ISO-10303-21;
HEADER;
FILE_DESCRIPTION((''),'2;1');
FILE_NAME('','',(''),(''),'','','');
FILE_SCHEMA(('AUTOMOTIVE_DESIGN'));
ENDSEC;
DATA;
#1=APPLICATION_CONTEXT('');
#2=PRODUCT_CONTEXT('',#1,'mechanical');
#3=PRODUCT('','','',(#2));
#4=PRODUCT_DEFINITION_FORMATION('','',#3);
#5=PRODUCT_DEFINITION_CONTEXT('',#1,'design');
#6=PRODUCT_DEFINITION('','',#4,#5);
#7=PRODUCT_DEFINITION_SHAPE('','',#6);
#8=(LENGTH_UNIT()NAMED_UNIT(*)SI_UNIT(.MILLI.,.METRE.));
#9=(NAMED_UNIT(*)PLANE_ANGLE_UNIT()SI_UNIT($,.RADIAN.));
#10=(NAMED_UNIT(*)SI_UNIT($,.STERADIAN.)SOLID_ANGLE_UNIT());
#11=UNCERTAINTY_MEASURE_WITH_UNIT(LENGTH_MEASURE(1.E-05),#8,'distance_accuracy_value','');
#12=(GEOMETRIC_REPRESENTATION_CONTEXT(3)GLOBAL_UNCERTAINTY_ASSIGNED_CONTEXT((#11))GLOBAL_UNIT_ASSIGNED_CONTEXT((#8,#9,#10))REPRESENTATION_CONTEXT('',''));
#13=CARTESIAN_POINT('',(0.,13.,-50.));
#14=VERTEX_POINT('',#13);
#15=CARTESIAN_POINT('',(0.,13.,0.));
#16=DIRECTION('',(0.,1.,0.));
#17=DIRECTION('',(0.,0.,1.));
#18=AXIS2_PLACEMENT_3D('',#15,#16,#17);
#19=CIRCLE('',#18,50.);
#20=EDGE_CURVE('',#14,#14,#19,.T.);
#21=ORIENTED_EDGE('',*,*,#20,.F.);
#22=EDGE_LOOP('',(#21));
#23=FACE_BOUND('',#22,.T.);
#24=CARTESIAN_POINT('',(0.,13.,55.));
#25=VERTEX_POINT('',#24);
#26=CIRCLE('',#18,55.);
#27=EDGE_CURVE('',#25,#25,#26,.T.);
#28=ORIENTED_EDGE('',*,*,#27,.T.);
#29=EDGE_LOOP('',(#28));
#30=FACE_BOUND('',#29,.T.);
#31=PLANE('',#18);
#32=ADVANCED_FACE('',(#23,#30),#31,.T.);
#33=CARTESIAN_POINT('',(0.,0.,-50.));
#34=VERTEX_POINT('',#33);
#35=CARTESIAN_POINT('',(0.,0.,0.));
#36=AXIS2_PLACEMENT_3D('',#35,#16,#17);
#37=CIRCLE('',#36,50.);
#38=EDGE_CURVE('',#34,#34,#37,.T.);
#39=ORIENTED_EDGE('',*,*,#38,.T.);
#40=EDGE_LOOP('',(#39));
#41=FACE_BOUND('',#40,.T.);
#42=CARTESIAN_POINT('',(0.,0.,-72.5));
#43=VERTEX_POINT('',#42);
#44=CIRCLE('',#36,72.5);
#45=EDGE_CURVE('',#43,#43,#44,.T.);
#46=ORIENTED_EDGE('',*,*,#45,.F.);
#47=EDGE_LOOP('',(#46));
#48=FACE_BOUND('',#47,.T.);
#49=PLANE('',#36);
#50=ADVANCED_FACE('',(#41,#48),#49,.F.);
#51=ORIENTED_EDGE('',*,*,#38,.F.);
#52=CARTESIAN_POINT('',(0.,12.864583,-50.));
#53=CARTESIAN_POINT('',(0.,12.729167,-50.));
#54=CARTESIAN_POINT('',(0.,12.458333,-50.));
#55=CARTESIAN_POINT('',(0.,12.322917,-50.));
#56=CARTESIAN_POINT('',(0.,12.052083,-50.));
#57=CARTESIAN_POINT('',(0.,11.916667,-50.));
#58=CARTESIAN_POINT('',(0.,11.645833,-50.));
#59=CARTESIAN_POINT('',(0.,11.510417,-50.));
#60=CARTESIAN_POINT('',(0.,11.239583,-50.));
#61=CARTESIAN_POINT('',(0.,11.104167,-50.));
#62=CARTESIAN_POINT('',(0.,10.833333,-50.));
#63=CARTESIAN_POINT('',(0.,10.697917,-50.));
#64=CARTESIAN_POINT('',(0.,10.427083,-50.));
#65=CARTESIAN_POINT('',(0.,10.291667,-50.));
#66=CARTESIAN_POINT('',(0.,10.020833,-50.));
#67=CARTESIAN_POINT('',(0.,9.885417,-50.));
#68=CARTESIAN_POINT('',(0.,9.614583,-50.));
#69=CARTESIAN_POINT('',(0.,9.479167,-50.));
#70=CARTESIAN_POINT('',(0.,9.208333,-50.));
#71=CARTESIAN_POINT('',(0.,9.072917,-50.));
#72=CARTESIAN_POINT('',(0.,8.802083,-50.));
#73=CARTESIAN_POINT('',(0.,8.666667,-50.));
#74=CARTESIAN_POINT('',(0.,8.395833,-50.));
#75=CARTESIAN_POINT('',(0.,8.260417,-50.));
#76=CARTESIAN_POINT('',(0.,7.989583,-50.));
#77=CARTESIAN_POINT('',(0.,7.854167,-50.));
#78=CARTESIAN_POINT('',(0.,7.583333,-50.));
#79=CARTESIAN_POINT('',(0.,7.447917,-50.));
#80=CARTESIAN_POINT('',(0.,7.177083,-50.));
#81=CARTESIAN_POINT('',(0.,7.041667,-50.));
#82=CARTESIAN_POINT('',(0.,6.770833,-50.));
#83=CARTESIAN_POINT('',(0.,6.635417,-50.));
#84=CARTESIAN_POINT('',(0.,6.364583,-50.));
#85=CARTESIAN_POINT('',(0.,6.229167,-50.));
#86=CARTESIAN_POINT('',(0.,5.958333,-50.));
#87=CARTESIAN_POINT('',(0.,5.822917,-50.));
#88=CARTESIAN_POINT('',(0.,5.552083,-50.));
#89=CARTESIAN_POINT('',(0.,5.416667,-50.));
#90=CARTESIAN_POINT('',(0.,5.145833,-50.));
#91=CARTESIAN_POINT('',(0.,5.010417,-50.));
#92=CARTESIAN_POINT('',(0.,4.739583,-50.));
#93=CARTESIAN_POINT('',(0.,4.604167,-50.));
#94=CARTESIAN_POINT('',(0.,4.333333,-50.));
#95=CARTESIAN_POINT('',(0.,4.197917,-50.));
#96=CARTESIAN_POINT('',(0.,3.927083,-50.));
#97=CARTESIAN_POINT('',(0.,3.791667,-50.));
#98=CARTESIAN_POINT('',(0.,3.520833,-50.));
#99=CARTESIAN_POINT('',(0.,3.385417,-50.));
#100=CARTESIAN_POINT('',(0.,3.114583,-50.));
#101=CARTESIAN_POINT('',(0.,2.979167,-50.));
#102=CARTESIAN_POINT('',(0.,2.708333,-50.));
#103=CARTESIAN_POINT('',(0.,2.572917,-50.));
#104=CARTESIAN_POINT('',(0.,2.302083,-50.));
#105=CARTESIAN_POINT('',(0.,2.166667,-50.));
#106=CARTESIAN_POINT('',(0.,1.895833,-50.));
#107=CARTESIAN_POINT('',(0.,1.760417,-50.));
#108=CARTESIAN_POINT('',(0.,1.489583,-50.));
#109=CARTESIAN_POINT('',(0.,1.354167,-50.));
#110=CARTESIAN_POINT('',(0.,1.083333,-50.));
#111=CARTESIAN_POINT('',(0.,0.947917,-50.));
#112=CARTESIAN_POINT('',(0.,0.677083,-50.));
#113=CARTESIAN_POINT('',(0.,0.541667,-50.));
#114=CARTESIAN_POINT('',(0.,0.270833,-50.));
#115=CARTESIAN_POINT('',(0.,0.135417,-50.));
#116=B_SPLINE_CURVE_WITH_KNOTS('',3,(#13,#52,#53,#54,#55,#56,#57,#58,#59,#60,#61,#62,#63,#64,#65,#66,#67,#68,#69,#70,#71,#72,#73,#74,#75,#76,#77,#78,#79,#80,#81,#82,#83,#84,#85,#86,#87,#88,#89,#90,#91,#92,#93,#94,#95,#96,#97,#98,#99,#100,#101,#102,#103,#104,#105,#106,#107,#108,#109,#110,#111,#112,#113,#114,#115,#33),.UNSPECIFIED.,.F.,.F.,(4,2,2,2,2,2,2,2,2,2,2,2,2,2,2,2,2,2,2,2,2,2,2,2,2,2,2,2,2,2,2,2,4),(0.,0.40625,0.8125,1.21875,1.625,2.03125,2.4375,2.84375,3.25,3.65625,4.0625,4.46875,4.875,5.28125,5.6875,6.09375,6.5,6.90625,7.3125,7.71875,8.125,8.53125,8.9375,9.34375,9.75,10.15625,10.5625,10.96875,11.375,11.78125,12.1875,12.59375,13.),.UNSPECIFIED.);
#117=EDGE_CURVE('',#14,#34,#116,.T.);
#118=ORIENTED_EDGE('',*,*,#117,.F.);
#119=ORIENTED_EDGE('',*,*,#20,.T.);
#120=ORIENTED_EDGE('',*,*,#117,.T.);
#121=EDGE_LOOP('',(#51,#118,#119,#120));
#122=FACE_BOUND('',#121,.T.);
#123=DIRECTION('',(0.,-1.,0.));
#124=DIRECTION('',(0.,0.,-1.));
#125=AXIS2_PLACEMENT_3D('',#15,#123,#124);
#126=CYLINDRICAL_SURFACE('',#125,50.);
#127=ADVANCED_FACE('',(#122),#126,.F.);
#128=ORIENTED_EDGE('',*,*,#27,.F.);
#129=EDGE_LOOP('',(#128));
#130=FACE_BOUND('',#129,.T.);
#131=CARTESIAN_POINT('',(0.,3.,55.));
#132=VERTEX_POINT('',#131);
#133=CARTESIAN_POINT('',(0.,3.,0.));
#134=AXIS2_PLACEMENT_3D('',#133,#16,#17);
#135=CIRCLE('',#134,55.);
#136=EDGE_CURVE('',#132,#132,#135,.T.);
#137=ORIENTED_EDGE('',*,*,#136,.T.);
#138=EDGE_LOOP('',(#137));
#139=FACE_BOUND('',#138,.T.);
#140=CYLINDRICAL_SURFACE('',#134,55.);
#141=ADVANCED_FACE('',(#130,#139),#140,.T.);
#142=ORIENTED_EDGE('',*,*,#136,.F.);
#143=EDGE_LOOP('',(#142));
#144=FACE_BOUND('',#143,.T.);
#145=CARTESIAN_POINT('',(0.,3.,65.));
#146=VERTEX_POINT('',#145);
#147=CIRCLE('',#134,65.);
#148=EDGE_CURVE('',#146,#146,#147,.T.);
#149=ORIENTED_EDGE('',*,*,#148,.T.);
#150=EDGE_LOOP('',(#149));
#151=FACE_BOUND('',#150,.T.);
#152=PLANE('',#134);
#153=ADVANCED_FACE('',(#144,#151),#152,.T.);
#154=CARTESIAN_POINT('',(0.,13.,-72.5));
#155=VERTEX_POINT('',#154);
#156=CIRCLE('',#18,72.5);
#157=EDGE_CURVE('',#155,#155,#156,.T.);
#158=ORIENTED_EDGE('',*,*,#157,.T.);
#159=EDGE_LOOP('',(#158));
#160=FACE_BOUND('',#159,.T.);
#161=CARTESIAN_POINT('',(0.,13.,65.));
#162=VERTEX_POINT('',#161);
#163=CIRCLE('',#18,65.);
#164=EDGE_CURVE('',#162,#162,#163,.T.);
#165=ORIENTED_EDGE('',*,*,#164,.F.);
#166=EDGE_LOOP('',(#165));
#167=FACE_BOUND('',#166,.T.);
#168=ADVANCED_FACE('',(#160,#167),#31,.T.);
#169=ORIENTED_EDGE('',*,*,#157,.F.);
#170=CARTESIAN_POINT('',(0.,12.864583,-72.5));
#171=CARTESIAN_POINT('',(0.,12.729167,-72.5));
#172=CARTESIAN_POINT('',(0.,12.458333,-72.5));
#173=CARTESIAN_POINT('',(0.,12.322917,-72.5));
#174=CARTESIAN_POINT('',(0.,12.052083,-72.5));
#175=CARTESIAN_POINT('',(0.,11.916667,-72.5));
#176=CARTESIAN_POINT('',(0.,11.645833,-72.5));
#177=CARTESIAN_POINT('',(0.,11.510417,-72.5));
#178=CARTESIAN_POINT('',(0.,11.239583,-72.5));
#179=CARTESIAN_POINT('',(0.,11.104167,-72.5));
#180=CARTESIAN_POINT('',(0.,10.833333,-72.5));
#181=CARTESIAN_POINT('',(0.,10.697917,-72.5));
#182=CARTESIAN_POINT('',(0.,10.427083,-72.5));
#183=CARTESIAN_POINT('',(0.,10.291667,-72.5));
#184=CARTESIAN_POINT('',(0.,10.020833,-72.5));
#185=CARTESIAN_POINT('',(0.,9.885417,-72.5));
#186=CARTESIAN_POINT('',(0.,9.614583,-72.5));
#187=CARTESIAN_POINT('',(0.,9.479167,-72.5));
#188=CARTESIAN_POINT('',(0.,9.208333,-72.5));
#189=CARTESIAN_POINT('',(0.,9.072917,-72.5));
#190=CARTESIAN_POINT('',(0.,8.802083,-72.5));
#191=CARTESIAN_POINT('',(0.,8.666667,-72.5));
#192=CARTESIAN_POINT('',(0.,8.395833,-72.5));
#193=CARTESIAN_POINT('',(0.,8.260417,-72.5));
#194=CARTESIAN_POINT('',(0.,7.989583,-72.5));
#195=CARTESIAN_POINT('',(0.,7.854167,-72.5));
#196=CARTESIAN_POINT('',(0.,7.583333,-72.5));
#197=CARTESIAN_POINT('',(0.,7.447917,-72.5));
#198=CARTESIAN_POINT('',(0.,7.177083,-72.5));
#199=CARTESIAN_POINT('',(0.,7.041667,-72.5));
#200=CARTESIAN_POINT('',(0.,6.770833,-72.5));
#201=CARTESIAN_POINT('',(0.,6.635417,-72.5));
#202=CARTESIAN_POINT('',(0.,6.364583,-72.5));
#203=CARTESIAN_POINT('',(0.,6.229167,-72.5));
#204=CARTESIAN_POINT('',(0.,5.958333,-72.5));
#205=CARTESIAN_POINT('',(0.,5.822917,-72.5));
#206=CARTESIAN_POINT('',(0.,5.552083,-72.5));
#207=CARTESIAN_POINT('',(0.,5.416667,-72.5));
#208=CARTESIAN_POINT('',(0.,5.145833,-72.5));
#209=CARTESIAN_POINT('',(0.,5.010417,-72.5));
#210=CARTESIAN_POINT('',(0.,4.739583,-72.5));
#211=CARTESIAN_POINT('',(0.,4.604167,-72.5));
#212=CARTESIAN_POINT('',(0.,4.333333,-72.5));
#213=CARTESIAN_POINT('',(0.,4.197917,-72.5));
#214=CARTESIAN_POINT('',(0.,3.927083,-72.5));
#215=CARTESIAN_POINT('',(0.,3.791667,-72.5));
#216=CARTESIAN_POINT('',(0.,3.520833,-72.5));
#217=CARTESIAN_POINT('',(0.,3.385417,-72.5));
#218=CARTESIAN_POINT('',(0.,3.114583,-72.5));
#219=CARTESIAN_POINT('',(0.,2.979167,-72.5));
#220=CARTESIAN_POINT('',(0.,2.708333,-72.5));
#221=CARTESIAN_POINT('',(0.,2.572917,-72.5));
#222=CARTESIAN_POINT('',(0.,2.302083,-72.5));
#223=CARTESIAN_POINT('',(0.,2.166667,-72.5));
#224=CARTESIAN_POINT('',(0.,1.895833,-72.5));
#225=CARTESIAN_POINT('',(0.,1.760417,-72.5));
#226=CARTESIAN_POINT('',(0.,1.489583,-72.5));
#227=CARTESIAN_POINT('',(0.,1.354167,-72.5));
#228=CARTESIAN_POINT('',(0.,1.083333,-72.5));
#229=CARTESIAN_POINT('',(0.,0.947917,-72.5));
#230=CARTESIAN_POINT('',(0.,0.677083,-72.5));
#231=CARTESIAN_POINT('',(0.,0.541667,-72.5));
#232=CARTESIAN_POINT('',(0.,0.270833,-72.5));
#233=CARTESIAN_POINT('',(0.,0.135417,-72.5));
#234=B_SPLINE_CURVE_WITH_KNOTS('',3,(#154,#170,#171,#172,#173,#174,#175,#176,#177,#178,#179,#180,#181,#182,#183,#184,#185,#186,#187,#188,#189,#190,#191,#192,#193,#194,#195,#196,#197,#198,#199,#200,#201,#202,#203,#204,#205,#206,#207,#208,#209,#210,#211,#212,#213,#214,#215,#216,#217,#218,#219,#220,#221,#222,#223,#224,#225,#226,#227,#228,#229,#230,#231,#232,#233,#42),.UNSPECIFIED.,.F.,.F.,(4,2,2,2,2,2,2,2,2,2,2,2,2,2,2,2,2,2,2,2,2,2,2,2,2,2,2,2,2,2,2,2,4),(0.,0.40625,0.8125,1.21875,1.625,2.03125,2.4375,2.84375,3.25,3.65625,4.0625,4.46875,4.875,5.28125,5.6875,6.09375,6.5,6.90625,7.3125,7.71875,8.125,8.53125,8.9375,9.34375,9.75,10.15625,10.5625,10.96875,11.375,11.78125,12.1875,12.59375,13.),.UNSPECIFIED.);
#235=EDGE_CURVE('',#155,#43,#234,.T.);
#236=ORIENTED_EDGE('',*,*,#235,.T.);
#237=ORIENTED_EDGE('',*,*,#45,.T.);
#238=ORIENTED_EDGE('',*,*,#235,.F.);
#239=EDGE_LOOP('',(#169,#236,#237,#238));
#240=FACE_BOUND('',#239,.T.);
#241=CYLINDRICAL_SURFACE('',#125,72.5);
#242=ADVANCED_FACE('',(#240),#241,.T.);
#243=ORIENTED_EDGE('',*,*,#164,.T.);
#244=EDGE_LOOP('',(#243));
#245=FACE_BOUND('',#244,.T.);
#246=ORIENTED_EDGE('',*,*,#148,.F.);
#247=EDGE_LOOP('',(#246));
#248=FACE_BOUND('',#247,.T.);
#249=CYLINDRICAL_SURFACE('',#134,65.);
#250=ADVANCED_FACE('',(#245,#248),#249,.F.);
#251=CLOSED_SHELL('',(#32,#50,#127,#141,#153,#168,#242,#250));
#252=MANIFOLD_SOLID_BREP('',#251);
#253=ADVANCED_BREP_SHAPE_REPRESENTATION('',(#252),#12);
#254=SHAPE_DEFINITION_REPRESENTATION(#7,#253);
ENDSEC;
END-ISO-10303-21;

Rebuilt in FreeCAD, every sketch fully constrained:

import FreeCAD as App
import Part
import Sketcher
from FreeCAD import Vector
Q = App.Units.Quantity

doc = App.newDocument("Part")
body = doc.addObject("PartDesign::Body", "Body")

# Sketch on XZ plane
sketch1 = body.newObject("Sketcher::SketchObject", "Sketch")
sketch1.AttachmentSupport = (doc.getObject("XZ_Plane"), [""])
sketch1.MapMode = "FlatFace"
sketch1.addGeometry(Part.Circle(Vector(0, 0, 0), Vector(0, 0, 1), 72), False)
sketch1.addGeometry(Part.Circle(Vector(0, 0, 0), Vector(0, 0, 1), 50), False)
sketch1.addConstraint(Sketcher.Constraint("Coincident", 0, 3, -1, 1))
sketch1.addConstraint(Sketcher.Constraint("Coincident", 1, 3, -1, 1))
sketch1.addConstraint(Sketcher.Constraint("Diameter", 0, Q("145 mm")))
sketch1.addConstraint(Sketcher.Constraint("Diameter", 1, Q("100 mm")))
pad1 = body.newObject("PartDesign::Pad", "Pad")
pad1.Profile = sketch1
pad1.Length = 13
pad1.Reversed = True

# Sketch on XZ plane
sketch2 = body.newObject("Sketcher::SketchObject", "Sketch001")
sketch2.AttachmentSupport = (doc.getObject("XZ_Plane"), [""])
sketch2.MapMode = "FlatFace"
sketch2.AttachmentOffset = App.Placement(Vector(0, 0, -13), App.Rotation())
sketch2.addGeometry(Part.Circle(Vector(0, 0, 0), Vector(0, 0, 1), 65), False)
sketch2.addGeometry(Part.Circle(Vector(0, 0, 0), Vector(0, 0, 1), 55), False)
sketch2.addConstraint(Sketcher.Constraint("Coincident", 0, 3, -1, 1))
sketch2.addConstraint(Sketcher.Constraint("Coincident", 1, 3, -1, 1))
sketch2.addConstraint(Sketcher.Constraint("Diameter", 0, Q("130 mm")))
sketch2.addConstraint(Sketcher.Constraint("Diameter", 1, Q("110 mm")))
pocket1 = body.newObject("PartDesign::Pocket", "Pocket")
pocket1.Profile = sketch2
pocket1.Length = 10
pocket1.Reversed = True

doc.recompute()
